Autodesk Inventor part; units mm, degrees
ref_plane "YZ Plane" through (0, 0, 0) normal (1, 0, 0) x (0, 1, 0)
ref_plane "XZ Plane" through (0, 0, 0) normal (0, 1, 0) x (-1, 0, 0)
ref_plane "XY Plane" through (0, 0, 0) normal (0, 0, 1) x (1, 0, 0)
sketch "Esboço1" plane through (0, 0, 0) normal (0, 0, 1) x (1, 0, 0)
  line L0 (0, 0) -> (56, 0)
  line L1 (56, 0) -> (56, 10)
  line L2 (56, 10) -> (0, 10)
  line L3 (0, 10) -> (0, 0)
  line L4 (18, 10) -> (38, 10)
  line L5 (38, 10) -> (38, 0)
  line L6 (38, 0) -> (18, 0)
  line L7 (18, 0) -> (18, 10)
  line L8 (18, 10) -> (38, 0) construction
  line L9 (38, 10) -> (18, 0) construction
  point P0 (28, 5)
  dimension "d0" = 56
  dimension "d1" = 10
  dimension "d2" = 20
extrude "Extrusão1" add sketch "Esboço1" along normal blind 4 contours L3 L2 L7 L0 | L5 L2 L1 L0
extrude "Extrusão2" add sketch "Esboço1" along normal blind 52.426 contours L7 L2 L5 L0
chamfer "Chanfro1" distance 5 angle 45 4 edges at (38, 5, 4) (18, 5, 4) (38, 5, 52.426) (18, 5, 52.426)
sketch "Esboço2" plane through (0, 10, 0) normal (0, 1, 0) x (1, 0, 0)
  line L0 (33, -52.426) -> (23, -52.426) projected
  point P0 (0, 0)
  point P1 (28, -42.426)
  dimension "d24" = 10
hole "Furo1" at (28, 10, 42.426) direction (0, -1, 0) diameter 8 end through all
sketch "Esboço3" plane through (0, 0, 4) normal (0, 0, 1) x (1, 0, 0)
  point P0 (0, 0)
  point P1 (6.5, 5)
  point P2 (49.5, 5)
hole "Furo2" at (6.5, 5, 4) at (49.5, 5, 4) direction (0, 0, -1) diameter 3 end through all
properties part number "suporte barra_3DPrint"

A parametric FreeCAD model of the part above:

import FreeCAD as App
import Part
import Sketcher
Q = App.Units.Quantity


def edges_at(feature, points):
    """Names of the edges that pass closest to the given points."""
    edges = feature.Shape.Edges
    near = lambda p: min(range(len(edges)), key=lambda i: edges[i].distToShape(Part.Vertex(*p))[0])
    return sorted({f"Edge{near(p) + 1}" for p in points})

doc = App.newDocument("Part")
body = doc.addObject("PartDesign::Body", "Body")
body.AllowCompound = True

sketch1 = doc.addObject("Sketcher::SketchObject", "Sketch")
body.addObject(sketch1)
sketch1.AttachmentSupport = (doc.XY_Plane, [""])
sketch1.MapMode = "FlatFace"
sketch1.addGeometry([
    Part.LineSegment(App.Vector(0, 10, 0), App.Vector(0, 0, 0)),
    Part.LineSegment(App.Vector(0, 0, 0), App.Vector(18, 0, 0)),
    Part.LineSegment(App.Vector(18, 0, 0), App.Vector(18, 10, 0)),
    Part.LineSegment(App.Vector(18, 10, 0), App.Vector(0, 10, 0)),
    Part.LineSegment(App.Vector(38, 10, 0), App.Vector(38, 0, 0)),
    Part.LineSegment(App.Vector(38, 0, 0), App.Vector(56, 0, 0)),
    Part.LineSegment(App.Vector(56, 0, 0), App.Vector(56, 10, 0)),
    Part.LineSegment(App.Vector(56, 10, 0), App.Vector(38, 10, 0)),
], False)
sketch1.addConstraint([
    Sketcher.Constraint("Coincident", 0, 2, 1, 1),
    Sketcher.Constraint("Coincident", 1, 2, 2, 1),
    Sketcher.Constraint("Coincident", 2, 2, 3, 1),
    Sketcher.Constraint("Coincident", 3, 2, 0, 1),
    Sketcher.Constraint("Coincident", 4, 2, 5, 1),
    Sketcher.Constraint("Coincident", 5, 2, 6, 1),
    Sketcher.Constraint("Coincident", 6, 2, 7, 1),
    Sketcher.Constraint("Coincident", 7, 2, 4, 1),
    Sketcher.Constraint("Vertical", 0),
    Sketcher.Constraint("Horizontal", 1),
    Sketcher.Constraint("Vertical", 2),
    Sketcher.Constraint("Horizontal", 3),
    Sketcher.Constraint("Vertical", 4),
    Sketcher.Constraint("Horizontal", 5),
    Sketcher.Constraint("Vertical", 6),
    Sketcher.Constraint("Horizontal", 7),
    Sketcher.Constraint("Coincident", 0, 2, -1, 1),
    Sketcher.Constraint("PointOnObject", 4, 2, -1),
    Sketcher.Constraint("Horizontal", 3, 2, 6, 2),
    Sketcher.Constraint("Equal", 3, 5),
    Sketcher.Constraint("DistanceY", 0, 2, 0, 1, Q("10 mm")),
    Sketcher.Constraint("DistanceX", -1, 1, 5, 2, Q("56 mm")),
    Sketcher.Constraint("DistanceX", 1, 2, 4, 2, Q("20 mm")),
])
pad1 = doc.addObject("PartDesign::Pad", "Pad")
body.addObject(pad1)
pad1.Profile = sketch1
pad1.Length = 4

sketch2 = doc.addObject("Sketcher::SketchObject", "Sketch001")
body.addObject(sketch2)
sketch2.AttachmentSupport = (doc.XY_Plane, [""])
sketch2.MapMode = "FlatFace"
sketch2.addGeometry([
    Part.LineSegment(App.Vector(18, 10, 0), App.Vector(18, 0, 0)),
    Part.LineSegment(App.Vector(18, 0, 0), App.Vector(38, 0, 0)),
    Part.LineSegment(App.Vector(38, 0, 0), App.Vector(38, 10, 0)),
    Part.LineSegment(App.Vector(38, 10, 0), App.Vector(18, 10, 0)),
], False)
sketch2.addConstraint([
    Sketcher.Constraint("Coincident", 0, 2, 1, 1),
    Sketcher.Constraint("Coincident", 1, 2, 2, 1),
    Sketcher.Constraint("Coincident", 2, 2, 3, 1),
    Sketcher.Constraint("Coincident", 3, 2, 0, 1),
    Sketcher.Constraint("Vertical", 0),
    Sketcher.Constraint("Horizontal", 1),
    Sketcher.Constraint("Vertical", 2),
    Sketcher.Constraint("Horizontal", 3),
    Sketcher.Constraint("PointOnObject", 0, 2, -1),
    Sketcher.Constraint("DistanceX", 1, 1, 1, 2, Q("20 mm")),
    Sketcher.Constraint("DistanceY", 0, 2, 0, 1, Q("10 mm")),
    Sketcher.Constraint("DistanceX", -1, 1, 0, 2, Q("18 mm")),
])
pad2 = doc.addObject("PartDesign::Pad", "Pad001")
body.addObject(pad2)
pad2.Profile = sketch2
pad2.Length = 52.426
doc.recompute()

chamfer = doc.addObject("PartDesign::Chamfer", "Chamfer")
body.addObject(chamfer)
chamfer.Base = (pad2, edges_at(pad2, [
    (38, 5, 4),
    (18, 5, 4),
    (38, 5, 52.426),
    (18, 5, 52.426),
]))
chamfer.Size = 5

sketch3 = doc.addObject("Sketcher::SketchObject", "Sketch002")
body.addObject(sketch3)
sketch3.AttachmentSupport = (doc.XZ_Plane, [""])
sketch3.MapMode = "FlatFace"
sketch3.AttachmentOffset = App.Placement(App.Vector(0, 0, -10), App.Rotation())
sketch3.addGeometry(Part.Circle(App.Vector(28, 42.4, 0), App.Vector(0, 0, 1), 4), False)
sketch3.addConstraint([
    Sketcher.Constraint("Diameter", 0, Q("8 mm")),
    Sketcher.Constraint("DistanceX", -1, 1, 0, 3, Q("28 mm")),
    Sketcher.Constraint("DistanceY", -1, 1, 0, 3, Q("42.426 mm")),
])
doc.recompute()
hole = doc.addObject("PartDesign::Hole", "Hole")
body.addObject(hole)
hole.Profile = sketch3
hole.ThreadType = "None"
hole.Diameter = 8
hole.DepthType = "ThroughAll"
hole.Reversed = True

sketch4 = doc.addObject("Sketcher::SketchObject", "Sketch003")
body.addObject(sketch4)
sketch4.AttachmentSupport = (doc.XY_Plane, [""])
sketch4.MapMode = "FlatFace"
sketch4.AttachmentOffset = App.Placement(App.Vector(0, 0, 4), App.Rotation())
sketch4.addGeometry([
    Part.Circle(App.Vector(6.5, 5, 0), App.Vector(0, 0, 1), 1.5),
    Part.Circle(App.Vector(49.5, 5, 0), App.Vector(0, 0, 1), 1.5),
], False)
sketch4.addConstraint([
    Sketcher.Constraint("Equal", 0, 1),
    Sketcher.Constraint("Horizontal", 0, 3, 1, 3),
    Sketcher.Constraint("Diameter", 0, Q("3 mm")),
    Sketcher.Constraint("DistanceY", -1, 1, 0, 3, Q("5 mm")),
    Sketcher.Constraint("DistanceX", 0, 3, 1, 3, Q("43 mm")),
    Sketcher.Constraint("DistanceX", -1, 1, 0, 3, Q("6.5 mm")),
])
doc.recompute()
hole2 = doc.addObject("PartDesign::Hole", "Hole001")
body.addObject(hole2)
hole2.Profile = sketch4
hole2.ThreadType = "None"
hole2.Diameter = 3
hole2.DepthType = "ThroughAll"

doc.recompute()
